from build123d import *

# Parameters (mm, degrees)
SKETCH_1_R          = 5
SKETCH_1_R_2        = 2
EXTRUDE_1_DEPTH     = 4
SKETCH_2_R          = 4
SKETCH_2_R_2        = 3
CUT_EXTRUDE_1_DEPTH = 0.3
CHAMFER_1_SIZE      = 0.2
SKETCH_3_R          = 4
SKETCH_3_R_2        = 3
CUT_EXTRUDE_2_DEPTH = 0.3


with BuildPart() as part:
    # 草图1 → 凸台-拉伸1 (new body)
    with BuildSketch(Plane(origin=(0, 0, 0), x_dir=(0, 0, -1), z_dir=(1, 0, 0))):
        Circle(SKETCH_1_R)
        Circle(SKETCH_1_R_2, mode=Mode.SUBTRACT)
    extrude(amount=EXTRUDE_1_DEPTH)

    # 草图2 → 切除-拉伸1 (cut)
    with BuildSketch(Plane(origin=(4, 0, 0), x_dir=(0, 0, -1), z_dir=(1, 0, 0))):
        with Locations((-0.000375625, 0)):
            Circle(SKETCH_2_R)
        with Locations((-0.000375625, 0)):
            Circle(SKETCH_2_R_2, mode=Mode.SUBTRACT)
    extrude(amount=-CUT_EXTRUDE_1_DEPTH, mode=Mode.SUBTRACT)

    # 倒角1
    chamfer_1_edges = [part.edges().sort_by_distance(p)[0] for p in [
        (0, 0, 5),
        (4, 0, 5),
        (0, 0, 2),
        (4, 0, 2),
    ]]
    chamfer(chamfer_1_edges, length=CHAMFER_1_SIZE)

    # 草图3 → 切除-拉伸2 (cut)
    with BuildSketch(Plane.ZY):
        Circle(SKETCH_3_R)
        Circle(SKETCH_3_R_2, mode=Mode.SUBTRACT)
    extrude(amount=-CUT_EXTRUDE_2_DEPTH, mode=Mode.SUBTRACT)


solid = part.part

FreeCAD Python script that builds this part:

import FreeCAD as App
import Part
import Sketcher

V = App.Vector


def edges_at(feature, points):
    """Names of the edges that pass closest to the given points."""
    edges = feature.Shape.Edges
    near = lambda p: min(range(len(edges)), key=lambda i: edges[i].distToShape(Part.Vertex(*p))[0])
    return sorted({f"Edge{near(p) + 1}" for p in points})

doc = App.newDocument("Part")
body = doc.addObject("PartDesign::Body", "Body")

sketch1 = doc.addObject("Sketcher::SketchObject", "Sketch")
body.addObject(sketch1)
sketch1.AttachmentSupport = (doc.YZ_Plane, [""])
sketch1.MapMode = "FlatFace"
sketch1.addGeometry([
    Part.Circle(V(0, 0, 0), V(0, 0, 1), 5),
    Part.Circle(V(0, 0, 0), V(0, 0, 1), 2),
], False)
sketch1.addConstraint([
    Sketcher.Constraint("Coincident", 0, 3, -1, 1),
    Sketcher.Constraint("Coincident", 1, 3, -1, 1),
    Sketcher.Constraint("Diameter", 0, 10.0),
    Sketcher.Constraint("Diameter", 1, 4.0),
])
pad1 = doc.addObject("PartDesign::Pad", "Pad")
body.addObject(pad1)
pad1.Profile = sketch1
pad1.Length = 4

sketch2 = doc.addObject("Sketcher::SketchObject", "Sketch001")
body.addObject(sketch2)
sketch2.AttachmentSupport = (doc.YZ_Plane, [""])
sketch2.MapMode = "FlatFace"
sketch2.AttachmentOffset = App.Placement(V(0, 0, 4), App.Rotation())
sketch2.addGeometry([
    Part.Circle(V(0, 0, 0), V(0, 0, 1), 4),
    Part.Circle(V(0, 0, 0), V(0, 0, 1), 3),
], False)
sketch2.addConstraint([
    Sketcher.Constraint("Coincident", 1, 3, 0, 3),
    Sketcher.Constraint("PointOnObject", 0, 3, -2),
    Sketcher.Constraint("Diameter", 0, 8.0),
    Sketcher.Constraint("Diameter", 1, 6.0),
    Sketcher.Constraint("DistanceY", -1, 1, 0, 3, 0.000376),
])
pocket1 = doc.addObject("PartDesign::Pocket", "Pocket")
body.addObject(pocket1)
pocket1.Profile = sketch2
pocket1.Length = 0.3
doc.recompute()

chamfer = doc.addObject("PartDesign::Chamfer", "Chamfer")
body.addObject(chamfer)
chamfer.Base = (pocket1, edges_at(pocket1, [
    (0, 0, 5),
    (4, 0, 5),
    (0, 0, 2),
    (4, 0, 2),
]))
chamfer.Size = 0.2

sketch3 = doc.addObject("Sketcher::SketchObject", "Sketch002")
body.addObject(sketch3)
sketch3.AttachmentSupport = (doc.YZ_Plane, [""])
sketch3.MapMode = "FlatFace"
sketch3.addGeometry([
    Part.Circle(V(0, 0, 0), V(0, 0, 1), 4),
    Part.Circle(V(0, 0, 0), V(0, 0, 1), 3),
], False)
sketch3.addConstraint([
    Sketcher.Constraint("Coincident", 0, 3, -1, 1),
    Sketcher.Constraint("Coincident", 1, 3, -1, 1),
    Sketcher.Constraint("Diameter", 0, 8.0),
    Sketcher.Constraint("Diameter", 1, 6.0),
])
pocket2 = doc.addObject("PartDesign::Pocket", "Pocket001")
body.addObject(pocket2)
pocket2.Profile = sketch3
pocket2.Length = 0.3
pocket2.Reversed = True

doc.recompute()
